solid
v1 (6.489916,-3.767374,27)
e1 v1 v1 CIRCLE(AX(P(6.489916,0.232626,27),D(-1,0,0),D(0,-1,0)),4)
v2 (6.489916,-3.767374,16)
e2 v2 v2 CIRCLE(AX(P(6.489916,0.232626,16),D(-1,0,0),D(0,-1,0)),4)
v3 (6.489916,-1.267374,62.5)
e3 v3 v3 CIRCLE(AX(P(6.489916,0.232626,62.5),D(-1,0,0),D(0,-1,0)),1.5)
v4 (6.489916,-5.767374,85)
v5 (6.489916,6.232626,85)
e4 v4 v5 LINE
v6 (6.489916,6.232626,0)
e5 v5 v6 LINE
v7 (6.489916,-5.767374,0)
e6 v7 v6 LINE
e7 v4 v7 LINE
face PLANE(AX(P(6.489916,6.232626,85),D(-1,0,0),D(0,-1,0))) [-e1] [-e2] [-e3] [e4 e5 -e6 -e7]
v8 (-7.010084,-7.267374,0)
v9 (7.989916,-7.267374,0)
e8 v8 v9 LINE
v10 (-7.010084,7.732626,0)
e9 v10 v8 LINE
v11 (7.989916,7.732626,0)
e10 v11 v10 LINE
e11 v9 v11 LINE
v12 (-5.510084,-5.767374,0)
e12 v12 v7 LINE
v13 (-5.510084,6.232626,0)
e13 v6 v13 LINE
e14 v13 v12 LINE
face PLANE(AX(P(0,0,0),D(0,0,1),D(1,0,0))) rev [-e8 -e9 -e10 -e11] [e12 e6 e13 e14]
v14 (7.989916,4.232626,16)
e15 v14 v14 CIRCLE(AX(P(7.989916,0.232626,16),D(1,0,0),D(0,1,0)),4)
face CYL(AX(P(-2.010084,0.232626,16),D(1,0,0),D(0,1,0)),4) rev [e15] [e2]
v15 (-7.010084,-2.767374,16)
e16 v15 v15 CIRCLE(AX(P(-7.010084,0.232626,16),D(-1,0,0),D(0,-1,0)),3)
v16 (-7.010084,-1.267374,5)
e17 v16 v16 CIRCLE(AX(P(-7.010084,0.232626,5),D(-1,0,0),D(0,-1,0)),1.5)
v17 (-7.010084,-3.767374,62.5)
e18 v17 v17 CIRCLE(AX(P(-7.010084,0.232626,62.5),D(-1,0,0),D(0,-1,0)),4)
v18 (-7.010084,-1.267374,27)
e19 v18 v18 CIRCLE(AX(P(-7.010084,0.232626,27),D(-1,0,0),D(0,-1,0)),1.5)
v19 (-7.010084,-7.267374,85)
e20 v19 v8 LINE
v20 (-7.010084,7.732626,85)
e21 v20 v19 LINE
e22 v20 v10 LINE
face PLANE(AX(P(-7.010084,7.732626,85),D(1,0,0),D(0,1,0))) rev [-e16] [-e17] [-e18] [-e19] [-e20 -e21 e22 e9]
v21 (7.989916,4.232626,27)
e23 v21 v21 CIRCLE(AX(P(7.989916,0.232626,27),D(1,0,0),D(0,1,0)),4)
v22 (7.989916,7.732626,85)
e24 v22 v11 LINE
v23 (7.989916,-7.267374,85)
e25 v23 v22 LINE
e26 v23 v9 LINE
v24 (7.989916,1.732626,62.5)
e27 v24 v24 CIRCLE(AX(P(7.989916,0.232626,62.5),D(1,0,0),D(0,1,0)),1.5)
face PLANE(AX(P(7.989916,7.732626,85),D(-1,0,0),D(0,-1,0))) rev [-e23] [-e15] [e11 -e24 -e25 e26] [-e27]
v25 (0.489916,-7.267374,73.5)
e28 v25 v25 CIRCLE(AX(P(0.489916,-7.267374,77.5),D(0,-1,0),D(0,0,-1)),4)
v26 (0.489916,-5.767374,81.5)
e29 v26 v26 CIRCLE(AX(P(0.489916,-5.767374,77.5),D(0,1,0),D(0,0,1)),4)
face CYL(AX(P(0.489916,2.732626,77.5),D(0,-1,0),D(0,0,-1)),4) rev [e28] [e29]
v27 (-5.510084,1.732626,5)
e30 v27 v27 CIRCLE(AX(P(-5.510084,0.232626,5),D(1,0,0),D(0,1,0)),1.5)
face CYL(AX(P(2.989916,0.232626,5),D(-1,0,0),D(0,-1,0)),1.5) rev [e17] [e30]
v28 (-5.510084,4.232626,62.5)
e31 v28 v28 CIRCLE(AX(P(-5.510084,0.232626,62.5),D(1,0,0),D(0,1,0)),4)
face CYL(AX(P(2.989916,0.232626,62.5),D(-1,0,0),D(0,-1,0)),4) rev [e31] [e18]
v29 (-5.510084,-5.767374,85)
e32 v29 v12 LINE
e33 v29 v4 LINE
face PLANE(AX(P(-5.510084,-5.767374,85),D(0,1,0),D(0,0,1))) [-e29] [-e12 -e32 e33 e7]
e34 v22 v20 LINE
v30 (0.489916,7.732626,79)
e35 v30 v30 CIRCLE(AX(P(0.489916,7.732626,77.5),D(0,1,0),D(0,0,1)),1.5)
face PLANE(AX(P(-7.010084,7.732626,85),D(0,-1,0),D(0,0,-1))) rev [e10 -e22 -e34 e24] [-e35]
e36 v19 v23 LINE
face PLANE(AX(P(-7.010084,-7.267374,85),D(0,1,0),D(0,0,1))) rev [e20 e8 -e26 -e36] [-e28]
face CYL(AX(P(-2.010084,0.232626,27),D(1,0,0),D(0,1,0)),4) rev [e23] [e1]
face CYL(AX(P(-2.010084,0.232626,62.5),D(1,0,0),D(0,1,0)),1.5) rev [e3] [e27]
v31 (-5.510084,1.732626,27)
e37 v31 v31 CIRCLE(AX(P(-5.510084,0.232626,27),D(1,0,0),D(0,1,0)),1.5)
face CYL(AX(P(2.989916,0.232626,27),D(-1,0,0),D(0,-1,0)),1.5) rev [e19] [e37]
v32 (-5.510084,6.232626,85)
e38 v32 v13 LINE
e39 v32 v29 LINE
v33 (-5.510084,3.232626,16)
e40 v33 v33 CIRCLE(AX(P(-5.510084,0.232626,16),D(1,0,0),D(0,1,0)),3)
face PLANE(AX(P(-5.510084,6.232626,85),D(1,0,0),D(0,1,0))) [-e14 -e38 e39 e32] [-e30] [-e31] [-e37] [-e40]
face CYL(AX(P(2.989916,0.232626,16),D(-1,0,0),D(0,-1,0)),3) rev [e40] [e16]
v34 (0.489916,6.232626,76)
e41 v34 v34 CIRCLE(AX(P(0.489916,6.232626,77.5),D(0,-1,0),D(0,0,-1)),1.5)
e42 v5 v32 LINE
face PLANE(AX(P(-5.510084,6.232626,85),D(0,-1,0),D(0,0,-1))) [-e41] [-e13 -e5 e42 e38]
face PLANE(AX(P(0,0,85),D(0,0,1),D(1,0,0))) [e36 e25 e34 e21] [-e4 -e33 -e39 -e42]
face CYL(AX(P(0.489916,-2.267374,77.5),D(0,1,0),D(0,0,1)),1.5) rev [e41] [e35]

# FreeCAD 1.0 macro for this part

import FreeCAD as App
import Part
import Sketcher


def add_polygon(sketch, points):
    """Adds a closed chain of lines whose ends are joined by coincident constraints."""
    first, n = sketch.GeometryCount, len(points)
    for a, b in zip(points, points[1:] + points[:1]):
        sketch.addGeometry(Part.LineSegment(App.Vector(*a, 0), App.Vector(*b, 0)), False)
    for i in range(n):
        sketch.addConstraint(Sketcher.Constraint("Coincident", first + i, 2, first + (i + 1) % n, 1))

doc = App.newDocument("Part")
params = doc.addObject("Spreadsheet::Sheet", "Params")
for row, (alias, value) in enumerate([
    ("sketch1_width", "15 mm"),
    ("sketch1_width2", "12 mm"),
    ("pad1_length", "85 mm"),
    ("sketch2_diameter", "3 mm"),
    ("pocket1_length", "10 mm"),
    ("sketch3_diameter", "3 mm"),
    ("pocket2_length", "10 mm"),
    ("sketch4_diameter", "8 mm"),
    ("pocket3_length", "10 mm"),
    ("sketch5_diameter", "8 mm"),
    ("pocket4_length", "10 mm"),
    ("sketch6_diameter", "6 mm"),
    ("pocket5_length", "10 mm"),
    ("sketch7_diameter", "3 mm"),
    ("pocket6_length", "10 mm"),
    ("sketch8_diameter", "3 mm"),
    ("pocket7_length", "10 mm"),
    ("sketch9_diameter", "8 mm"),
    ("pocket8_length", "10 mm"),
], start=1):
    params.set(f"A{row}", alias)
    params.set(f"B{row}", "=" + value)
    params.setAlias(f"B{row}", alias)

body = doc.addObject("PartDesign::Body", "Body")

# Sketch on XY plane
sketch1 = body.newObject("Sketcher::SketchObject", "Sketch")
sketch1.AttachmentSupport = (doc.getObject("XY_Plane"), [""])
sketch1.MapMode = "FlatFace"
add_polygon(sketch1, [(-7, 8), (-7, -7), (8, -7), (8, 8)])  # lines 0-3
add_polygon(sketch1, [(6, -6), (-6, -6), (-6, 6), (6, 6)])  # lines 4-7
sketch1.addConstraint([
    Sketcher.Constraint("Vertical", 0),
    Sketcher.Constraint("Horizontal", 1),
    Sketcher.Constraint("Vertical", 2),
    Sketcher.Constraint("Horizontal", 3),
    Sketcher.Constraint("Horizontal", 4),
    Sketcher.Constraint("Vertical", 5),
    Sketcher.Constraint("Horizontal", 6),
    Sketcher.Constraint("Vertical", 7),
    Sketcher.Constraint("Equal", 3, 0),
    Sketcher.Constraint("Equal", 6, 5),
    Sketcher.Constraint("DistanceX", 1, 1, 1, 2, 15.0),
    Sketcher.Constraint("DistanceX", 4, 2, 4, 1, 12.0),
    Sketcher.Constraint("DistanceX", 0, 2, 4, 2, 1.5),
    Sketcher.Constraint("DistanceY", 0, 2, 4, 2, 1.5),
    Sketcher.Constraint("DistanceX", 0, 2, -1, 1, 7.010084),
    Sketcher.Constraint("DistanceY", 0, 2, -1, 1, 7.267374),
])
sketch1.setExpression("Constraints[18]", "Params.sketch1_width")
sketch1.setExpression("Constraints[19]", "Params.sketch1_width2")
pad1 = body.newObject("PartDesign::Pad", "Pad")
pad1.Profile = sketch1
pad1.setExpression("Length", "Params.pad1_length")

# Sketch on XZ plane
sketch2 = body.newObject("Sketcher::SketchObject", "Sketch001")
sketch2.AttachmentSupport = (doc.getObject("XZ_Plane"), [""])
sketch2.MapMode = "FlatFace"
sketch2.AttachmentOffset = App.Placement(App.Vector(0, 0, -7.732626), App.Rotation())
sketch2.addGeometry(Part.Circle(App.Vector(0.5, 77.5, 0), App.Vector(0, 0, 1), 1.5), False)
sketch2.addConstraint([
    Sketcher.Constraint("Diameter", 0, 3.0),
    Sketcher.Constraint("DistanceY", -1, 1, 0, 3, 77.5),
    Sketcher.Constraint("DistanceX", -1, 1, 0, 3, 0.489916),
])
sketch2.setExpression("Constraints[0]", "Params.sketch2_diameter")
pocket1 = body.newObject("PartDesign::Pocket", "Pocket")
pocket1.Profile = sketch2
pocket1.setExpression("Length", "Params.pocket1_length")
pocket1.Reversed = True

# Sketch on YZ plane
sketch3 = body.newObject("Sketcher::SketchObject", "Sketch002")
sketch3.AttachmentSupport = (doc.getObject("YZ_Plane"), [""])
sketch3.MapMode = "FlatFace"
sketch3.AttachmentOffset = App.Placement(App.Vector(0, 0, 7.989916), App.Rotation())
sketch3.addGeometry(Part.Circle(App.Vector(0.2, 62.5, 0), App.Vector(0, 0, 1), 1.5), False)
sketch3.addConstraint([
    Sketcher.Constraint("Diameter", 0, 3.0),
    Sketcher.Constraint("DistanceY", -1, 1, 0, 3, 62.5),
    Sketcher.Constraint("DistanceX", -1, 1, 0, 3, 0.232626),
])
sketch3.setExpression("Constraints[0]", "Params.sketch3_diameter")
pocket2 = body.newObject("PartDesign::Pocket", "Pocket001")
pocket2.Profile = sketch3
pocket2.setExpression("Length", "Params.pocket2_length")

# Sketch on XZ plane
sketch4 = body.newObject("Sketcher::SketchObject", "Sketch003")
sketch4.AttachmentSupport = (doc.getObject("XZ_Plane"), [""])
sketch4.MapMode = "FlatFace"
sketch4.AttachmentOffset = App.Placement(App.Vector(0, 0, 7.267374), App.Rotation())
sketch4.addGeometry(Part.Circle(App.Vector(0.5, 77.5, 0), App.Vector(0, 0, 1), 4), False)
sketch4.addConstraint([
    Sketcher.Constraint("Diameter", 0, 8.0),
    Sketcher.Constraint("DistanceY", -1, 1, 0, 3, 77.5),
    Sketcher.Constraint("DistanceX", -1, 1, 0, 3, 0.489916),
])
sketch4.setExpression("Constraints[0]", "Params.sketch4_diameter")
pocket3 = body.newObject("PartDesign::Pocket", "Pocket002")
pocket3.Profile = sketch4
pocket3.setExpression("Length", "Params.pocket3_length")

# Sketch on YZ plane
sketch5 = body.newObject("Sketcher::SketchObject", "Sketch004")
sketch5.AttachmentSupport = (doc.getObject("YZ_Plane"), [""])
sketch5.MapMode = "FlatFace"
sketch5.AttachmentOffset = App.Placement(App.Vector(0, 0, -7.010084), App.Rotation())
sketch5.addGeometry(Part.Circle(App.Vector(0.2, 62.5, 0), App.Vector(0, 0, 1), 4), False)
sketch5.addConstraint([
    Sketcher.Constraint("Diameter", 0, 8.0),
    Sketcher.Constraint("DistanceY", -1, 1, 0, 3, 62.5),
    Sketcher.Constraint("DistanceX", -1, 1, 0, 3, 0.232626),
])
sketch5.setExpression("Constraints[0]", "Params.sketch5_diameter")
pocket4 = body.newObject("PartDesign::Pocket", "Pocket003")
pocket4.Profile = sketch5
pocket4.setExpression("Length", "Params.pocket4_length")
pocket4.Reversed = True

# Sketch on YZ plane
sketch6 = body.newObject("Sketcher::SketchObject", "Sketch005")
sketch6.AttachmentSupport = (doc.getObject("YZ_Plane"), [""])
sketch6.MapMode = "FlatFace"
sketch6.AttachmentOffset = App.Placement(App.Vector(0, 0, -7.010084), App.Rotation())
sketch6.addGeometry(Part.Circle(App.Vector(0.2, 16, 0), App.Vector(0, 0, 1), 3), False)
sketch6.addConstraint([
    Sketcher.Constraint("Diameter", 0, 6.0),
    Sketcher.Constraint("DistanceY", -1, 1, 0, 3, 16.0),
    Sketcher.Constraint("DistanceX", -1, 1, 0, 3, 0.232626),
])
sketch6.setExpression("Constraints[0]", "Params.sketch6_diameter")
pocket5 = body.newObject("PartDesign::Pocket", "Pocket004")
pocket5.Profile = sketch6
pocket5.setExpression("Length", "Params.pocket5_length")
pocket5.Reversed = True

# Sketch on YZ plane
sketch7 = body.newObject("Sketcher::SketchObject", "Sketch006")
sketch7.AttachmentSupport = (doc.getObject("YZ_Plane"), [""])
sketch7.MapMode = "FlatFace"
sketch7.AttachmentOffset = App.Placement(App.Vector(0, 0, -7.010084), App.Rotation())
sketch7.addGeometry(Part.Circle(App.Vector(0.2, 5, 0), App.Vector(0, 0, 1), 1.5), False)
sketch7.addConstraint([
    Sketcher.Constraint("Diameter", 0, 3.0),
    Sketcher.Constraint("DistanceY", -1, 1, 0, 3, 5.0),
    Sketcher.Constraint("DistanceX", -1, 1, 0, 3, 0.232626),
])
sketch7.setExpression("Constraints[0]", "Params.sketch7_diameter")
pocket6 = body.newObject("PartDesign::Pocket", "Pocket005")
pocket6.Profile = sketch7
pocket6.setExpression("Length", "Params.pocket6_length")
pocket6.Reversed = True

# Sketch on YZ plane
sketch8 = body.newObject("Sketcher::SketchObject", "Sketch007")
sketch8.AttachmentSupport = (doc.getObject("YZ_Plane"), [""])
sketch8.MapMode = "FlatFace"
sketch8.AttachmentOffset = App.Placement(App.Vector(0, 0, -7.010084), App.Rotation())
sketch8.addGeometry(Part.Circle(App.Vector(0.2, 27, 0), App.Vector(0, 0, 1), 1.5), False)
sketch8.addConstraint([
    Sketcher.Constraint("Diameter", 0, 3.0),
    Sketcher.Constraint("DistanceY", -1, 1, 0, 3, 27.0),
    Sketcher.Constraint("DistanceX", -1, 1, 0, 3, 0.232626),
])
sketch8.setExpression("Constraints[0]", "Params.sketch8_diameter")
pocket7 = body.newObject("PartDesign::Pocket", "Pocket006")
pocket7.Profile = sketch8
pocket7.setExpression("Length", "Params.pocket7_length")
pocket7.Reversed = True

# Sketch on YZ plane
sketch9 = body.newObject("Sketcher::SketchObject", "Sketch008")
sketch9.AttachmentSupport = (doc.getObject("YZ_Plane"), [""])
sketch9.MapMode = "FlatFace"
sketch9.AttachmentOffset = App.Placement(App.Vector(0, 0, 7.989916), App.Rotation())
sketch9.addGeometry([
    Part.Circle(App.Vector(0.2, 16, 0), App.Vector(0, 0, 1), 4),
    Part.Circle(App.Vector(0.2, 27, 0), App.Vector(0, 0, 1), 4),
], False)
sketch9.addConstraint([
    Sketcher.Constraint("Equal", 0, 1),
    Sketcher.Constraint("Vertical", 0, 3, 1, 3),
    Sketcher.Constraint("Diameter", 0, 8.0),
    Sketcher.Constraint("DistanceY", -1, 1, 0, 3, 16.0),
    Sketcher.Constraint("DistanceY", -1, 1, 1, 3, 27.0),
    Sketcher.Constraint("DistanceX", -1, 1, 0, 3, 0.232626),
])
sketch9.setExpression("Constraints[2]", "Params.sketch9_diameter")
pocket8 = body.newObject("PartDesign::Pocket", "Pocket007")
pocket8.Profile = sketch9
pocket8.setExpression("Length", "Params.pocket8_length")

doc.recompute()
